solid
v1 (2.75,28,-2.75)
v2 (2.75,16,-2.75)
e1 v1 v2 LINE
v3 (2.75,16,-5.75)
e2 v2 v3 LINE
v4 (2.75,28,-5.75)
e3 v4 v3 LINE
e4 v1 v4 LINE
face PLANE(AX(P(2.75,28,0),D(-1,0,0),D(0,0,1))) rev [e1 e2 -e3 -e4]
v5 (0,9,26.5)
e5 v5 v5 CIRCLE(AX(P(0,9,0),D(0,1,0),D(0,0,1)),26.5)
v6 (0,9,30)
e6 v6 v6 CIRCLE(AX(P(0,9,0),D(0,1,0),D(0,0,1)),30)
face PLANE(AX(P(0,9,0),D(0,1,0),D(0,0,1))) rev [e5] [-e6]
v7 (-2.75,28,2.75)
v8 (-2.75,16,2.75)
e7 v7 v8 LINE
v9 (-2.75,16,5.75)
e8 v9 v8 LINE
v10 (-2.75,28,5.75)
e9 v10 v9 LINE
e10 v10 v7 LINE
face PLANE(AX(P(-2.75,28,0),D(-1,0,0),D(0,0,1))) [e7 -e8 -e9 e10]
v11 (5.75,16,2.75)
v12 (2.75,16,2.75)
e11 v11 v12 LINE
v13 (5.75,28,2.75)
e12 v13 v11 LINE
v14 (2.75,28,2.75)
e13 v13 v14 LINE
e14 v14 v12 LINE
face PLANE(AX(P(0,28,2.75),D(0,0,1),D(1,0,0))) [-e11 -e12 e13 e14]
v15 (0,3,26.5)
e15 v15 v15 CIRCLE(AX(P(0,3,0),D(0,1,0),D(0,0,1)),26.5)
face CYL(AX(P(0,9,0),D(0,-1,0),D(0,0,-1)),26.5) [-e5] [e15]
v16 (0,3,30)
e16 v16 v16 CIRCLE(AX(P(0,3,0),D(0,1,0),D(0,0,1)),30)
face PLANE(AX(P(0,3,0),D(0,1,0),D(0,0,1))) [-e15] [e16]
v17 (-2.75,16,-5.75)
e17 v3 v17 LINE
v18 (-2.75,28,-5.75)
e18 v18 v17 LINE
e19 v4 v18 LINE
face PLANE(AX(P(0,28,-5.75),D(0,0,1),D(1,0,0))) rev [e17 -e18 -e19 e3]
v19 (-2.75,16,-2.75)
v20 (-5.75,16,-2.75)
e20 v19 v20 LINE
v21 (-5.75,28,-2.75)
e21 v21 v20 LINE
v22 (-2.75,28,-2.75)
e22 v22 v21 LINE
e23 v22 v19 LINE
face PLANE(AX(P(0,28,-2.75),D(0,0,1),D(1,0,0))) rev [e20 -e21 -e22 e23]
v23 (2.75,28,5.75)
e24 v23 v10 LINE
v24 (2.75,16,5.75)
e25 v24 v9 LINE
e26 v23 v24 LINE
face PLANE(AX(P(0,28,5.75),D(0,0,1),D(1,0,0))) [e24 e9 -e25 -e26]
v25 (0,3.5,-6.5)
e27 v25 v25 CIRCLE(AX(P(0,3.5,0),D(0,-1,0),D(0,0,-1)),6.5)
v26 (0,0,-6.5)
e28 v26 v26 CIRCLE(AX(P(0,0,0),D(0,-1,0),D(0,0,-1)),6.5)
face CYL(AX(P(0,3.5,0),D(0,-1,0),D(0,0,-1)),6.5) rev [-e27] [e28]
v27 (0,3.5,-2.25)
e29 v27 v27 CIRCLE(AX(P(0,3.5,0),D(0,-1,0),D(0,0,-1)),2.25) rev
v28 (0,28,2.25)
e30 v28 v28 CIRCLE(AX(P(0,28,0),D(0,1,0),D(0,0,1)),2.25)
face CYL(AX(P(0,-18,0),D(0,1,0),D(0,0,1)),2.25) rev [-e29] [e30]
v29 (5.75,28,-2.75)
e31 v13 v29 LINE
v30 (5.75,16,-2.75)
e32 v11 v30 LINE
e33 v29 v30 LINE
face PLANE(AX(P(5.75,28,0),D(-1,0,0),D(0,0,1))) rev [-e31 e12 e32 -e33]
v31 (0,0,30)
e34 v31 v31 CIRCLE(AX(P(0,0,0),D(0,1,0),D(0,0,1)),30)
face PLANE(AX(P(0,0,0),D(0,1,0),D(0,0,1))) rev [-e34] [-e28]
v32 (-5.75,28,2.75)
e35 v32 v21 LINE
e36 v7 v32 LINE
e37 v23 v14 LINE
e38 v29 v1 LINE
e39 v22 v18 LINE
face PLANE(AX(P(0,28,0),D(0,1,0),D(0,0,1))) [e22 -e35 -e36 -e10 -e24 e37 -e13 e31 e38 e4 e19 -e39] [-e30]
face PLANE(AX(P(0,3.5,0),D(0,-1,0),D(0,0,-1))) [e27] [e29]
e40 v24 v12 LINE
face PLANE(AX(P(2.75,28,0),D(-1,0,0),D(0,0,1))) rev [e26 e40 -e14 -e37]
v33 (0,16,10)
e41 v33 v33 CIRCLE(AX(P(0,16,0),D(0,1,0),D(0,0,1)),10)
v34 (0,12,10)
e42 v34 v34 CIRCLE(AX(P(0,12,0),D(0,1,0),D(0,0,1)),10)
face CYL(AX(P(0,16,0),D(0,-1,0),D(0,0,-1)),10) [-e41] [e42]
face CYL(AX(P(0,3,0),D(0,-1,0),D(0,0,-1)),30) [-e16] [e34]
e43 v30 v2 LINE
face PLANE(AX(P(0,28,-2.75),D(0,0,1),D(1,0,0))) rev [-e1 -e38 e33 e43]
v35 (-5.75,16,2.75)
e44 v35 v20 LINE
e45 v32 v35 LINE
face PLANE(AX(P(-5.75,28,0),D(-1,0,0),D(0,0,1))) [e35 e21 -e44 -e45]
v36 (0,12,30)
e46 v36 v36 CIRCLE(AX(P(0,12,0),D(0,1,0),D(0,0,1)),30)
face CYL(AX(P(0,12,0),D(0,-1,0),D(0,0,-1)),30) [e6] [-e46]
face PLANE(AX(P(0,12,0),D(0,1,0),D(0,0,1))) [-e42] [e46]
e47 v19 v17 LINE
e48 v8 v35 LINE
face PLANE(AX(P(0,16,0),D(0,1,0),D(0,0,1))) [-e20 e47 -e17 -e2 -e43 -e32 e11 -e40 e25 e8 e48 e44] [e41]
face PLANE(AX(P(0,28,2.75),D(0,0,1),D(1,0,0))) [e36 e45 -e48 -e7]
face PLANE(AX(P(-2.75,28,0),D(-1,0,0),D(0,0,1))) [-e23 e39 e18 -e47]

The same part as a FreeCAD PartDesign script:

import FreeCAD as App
import Part
import Sketcher

doc = App.newDocument("Part")
body = doc.addObject("PartDesign::Body", "Body")

sketch1 = doc.addObject("Sketcher::SketchObject", "Sketch")
body.addObject(sketch1)
sketch1.AttachmentSupport = (doc.XZ_Plane, [""])
sketch1.MapMode = "FlatFace"
sketch1.addGeometry(Part.Circle(App.Vector(0, 0, 0), App.Vector(0, 0, 1), 30), False)
sketch1.addConstraint(Sketcher.Constraint("Coincident", 0, 3, -1, 1))
sketch1.addConstraint(Sketcher.Constraint("Diameter", 0, 60.0))
pad1 = doc.addObject("PartDesign::Pad", "Pad")
body.addObject(pad1)
pad1.Profile = sketch1
pad1.Length = 3
pad1.Reversed = True

sketch2 = doc.addObject("Sketcher::SketchObject", "Sketch001")
body.addObject(sketch2)
sketch2.AttachmentSupport = (doc.XZ_Plane, [""])
sketch2.MapMode = "FlatFace"
sketch2.AttachmentOffset = App.Placement(App.Vector(0, 0, -3), App.Rotation())
sketch2.addGeometry(Part.Circle(App.Vector(0, 0, 0), App.Vector(0, 0, 1), 26), False)
sketch2.addConstraint(Sketcher.Constraint("Coincident", 0, 3, -1, 1))
sketch2.addConstraint(Sketcher.Constraint("Diameter", 0, 53.0))
pad2 = doc.addObject("PartDesign::Pad", "Pad001")
body.addObject(pad2)
pad2.Profile = sketch2
pad2.Length = 6
pad2.Reversed = True

sketch3 = doc.addObject("Sketcher::SketchObject", "Sketch002")
body.addObject(sketch3)
sketch3.AttachmentSupport = (doc.XZ_Plane, [""])
sketch3.MapMode = "FlatFace"
sketch3.AttachmentOffset = App.Placement(App.Vector(0, 0, -9), App.Rotation())
sketch3.addGeometry(Part.Circle(App.Vector(0, 0, 0), App.Vector(0, 0, 1), 30), False)
sketch3.addConstraint(Sketcher.Constraint("Coincident", 0, 3, -1, 1))
sketch3.addConstraint(Sketcher.Constraint("Diameter", 0, 60.0))
pad3 = doc.addObject("PartDesign::Pad", "Pad002")
body.addObject(pad3)
pad3.Profile = sketch3
pad3.Length = 3
pad3.Reversed = True

sketch4 = doc.addObject("Sketcher::SketchObject", "Sketch003")
body.addObject(sketch4)
sketch4.AttachmentSupport = (doc.XZ_Plane, [""])
sketch4.MapMode = "FlatFace"
sketch4.AttachmentOffset = App.Placement(App.Vector(0, 0, -12), App.Rotation())
sketch4.addGeometry(Part.LineSegment(App.Vector(-2.8, -5.8, 0), App.Vector(-2.8, -2.8, 0)), False)
sketch4.addGeometry(Part.LineSegment(App.Vector(-2.8, -2.8, 0), App.Vector(-5.8, -2.8, 0)), False)
sketch4.addGeometry(Part.LineSegment(App.Vector(-5.8, -2.8, 0), App.Vector(-5.8, 2.8, 0)), False)
sketch4.addGeometry(Part.LineSegment(App.Vector(-5.8, 2.8, 0), App.Vector(-2.8, 2.8, 0)), False)
sketch4.addGeometry(Part.LineSegment(App.Vector(-2.8, 2.8, 0), App.Vector(-2.8, 5.8, 0)), False)
sketch4.addGeometry(Part.LineSegment(App.Vector(-2.8, 5.8, 0), App.Vector(2.8, 5.8, 0)), False)
sketch4.addGeometry(Part.LineSegment(App.Vector(2.8, 5.8, 0), App.Vector(2.8, 2.8, 0)), False)
sketch4.addGeometry(Part.LineSegment(App.Vector(2.8, 2.8, 0), App.Vector(5.8, 2.8, 0)), False)
sketch4.addGeometry(Part.LineSegment(App.Vector(5.8, 2.8, 0), App.Vector(5.8, -2.8, 0)), False)
sketch4.addGeometry(Part.LineSegment(App.Vector(5.8, -2.8, 0), App.Vector(2.8, -2.8, 0)), False)
sketch4.addGeometry(Part.LineSegment(App.Vector(2.8, -2.8, 0), App.Vector(2.8, -5.8, 0)), False)
sketch4.addGeometry(Part.LineSegment(App.Vector(2.8, -5.8, 0), App.Vector(-2.8, -5.8, 0)), False)
sketch4.addConstraint(Sketcher.Constraint("Coincident", 0, 2, 1, 1))
sketch4.addConstraint(Sketcher.Constraint("Coincident", 1, 2, 2, 1))
sketch4.addConstraint(Sketcher.Constraint("Coincident", 2, 2, 3, 1))
sketch4.addConstraint(Sketcher.Constraint("Coincident", 3, 2, 4, 1))
sketch4.addConstraint(Sketcher.Constraint("Coincident", 4, 2, 5, 1))
sketch4.addConstraint(Sketcher.Constraint("Coincident", 5, 2, 6, 1))
sketch4.addConstraint(Sketcher.Constraint("Coincident", 6, 2, 7, 1))
sketch4.addConstraint(Sketcher.Constraint("Coincident", 7, 2, 8, 1))
sketch4.addConstraint(Sketcher.Constraint("Coincident", 8, 2, 9, 1))
sketch4.addConstraint(Sketcher.Constraint("Coincident", 9, 2, 10, 1))
sketch4.addConstraint(Sketcher.Constraint("Coincident", 10, 2, 11, 1))
sketch4.addConstraint(Sketcher.Constraint("Coincident", 11, 2, 0, 1))
sketch4.addConstraint(Sketcher.Constraint("Vertical", 0))
sketch4.addConstraint(Sketcher.Constraint("Horizontal", 1))
sketch4.addConstraint(Sketcher.Constraint("Vertical", 2))
sketch4.addConstraint(Sketcher.Constraint("Horizontal", 3))
sketch4.addConstraint(Sketcher.Constraint("Vertical", 4))
sketch4.addConstraint(Sketcher.Constraint("Horizontal", 5))
sketch4.addConstraint(Sketcher.Constraint("Vertical", 6))
sketch4.addConstraint(Sketcher.Constraint("Horizontal", 7))
sketch4.addConstraint(Sketcher.Constraint("Vertical", 8))
sketch4.addConstraint(Sketcher.Constraint("Horizontal", 9))
sketch4.addConstraint(Sketcher.Constraint("Vertical", 10))
sketch4.addConstraint(Sketcher.Constraint("Horizontal", 11))
sketch4.addConstraint(Sketcher.Constraint("Symmetric", 0, 2, 6, 2, -1, 1))
sketch4.addConstraint(Sketcher.Constraint("Symmetric", 2, 2, 8, 2, -1, 1))
sketch4.addConstraint(Sketcher.Constraint("Symmetric", 4, 2, 10, 2, -1, 1))
sketch4.addConstraint(Sketcher.Constraint("Symmetric", 3, 2, 6, 2, -2))
sketch4.addConstraint(Sketcher.Constraint("Equal", 9, 0))
sketch4.addConstraint(Sketcher.Constraint("Equal", 11, 2))
sketch4.addConstraint(Sketcher.Constraint("DistanceX", 1, 2, 1, 1, 3.0))
sketch4.addConstraint(Sketcher.Constraint("DistanceX", 5, 1, 5, 2, 5.5))
pad4 = doc.addObject("PartDesign::Pad", "Pad003")
body.addObject(pad4)
pad4.Profile = sketch4
pad4.Length = 16
pad4.Reversed = True

sketch5 = doc.addObject("Sketcher::SketchObject", "Sketch004")
body.addObject(sketch5)
sketch5.AttachmentSupport = (doc.XZ_Plane, [""])
sketch5.MapMode = "FlatFace"
sketch5.AttachmentOffset = App.Placement(App.Vector(0, 0, -12), App.Rotation())
sketch5.addGeometry(Part.Circle(App.Vector(0, 0, 0), App.Vector(0, 0, 1), 10), False)
sketch5.addConstraint(Sketcher.Constraint("Coincident", 0, 3, -1, 1))
sketch5.addConstraint(Sketcher.Constraint("Diameter", 0, 20.0))
pad5 = doc.addObject("PartDesign::Pad", "Pad004")
body.addObject(pad5)
pad5.Profile = sketch5
pad5.Length = 4
pad5.Reversed = True

sketch6 = doc.addObject("Sketcher::SketchObject", "Sketch005")
body.addObject(sketch6)
sketch6.AttachmentSupport = (doc.XZ_Plane, [""])
sketch6.MapMode = "FlatFace"
sketch6.AttachmentOffset = App.Placement(App.Vector(0, 0, -28), App.Rotation())
sketch6.addGeometry(Part.Circle(App.Vector(0, 0, 0), App.Vector(0, 0, 1), 2.2), False)
sketch6.addConstraint(Sketcher.Constraint("Coincident", 0, 3, -1, 1))
sketch6.addConstraint(Sketcher.Constraint("Diameter", 0, 4.5))
pocket1 = doc.addObject("PartDesign::Pocket", "Pocket")
body.addObject(pocket1)
pocket1.Profile = sketch6
pocket1.Length = 46
pocket1.Reversed = True

sketch7 = doc.addObject("Sketcher::SketchObject", "Sketch006")
body.addObject(sketch7)
sketch7.AttachmentSupport = (doc.XZ_Plane, [""])
sketch7.MapMode = "FlatFace"
sketch7.addGeometry(Part.Circle(App.Vector(0, 0, 0), App.Vector(0, 0, 1), 6), False)
sketch7.addConstraint(Sketcher.Constraint("Coincident", 0, 3, -1, 1))
sketch7.addConstraint(Sketcher.Constraint("Diameter", 0, 13.0))
pocket2 = doc.addObject("PartDesign::Pocket", "Pocket001")
body.addObject(pocket2)
pocket2.Profile = sketch7
pocket2.Length = 3.5

doc.recompute()
